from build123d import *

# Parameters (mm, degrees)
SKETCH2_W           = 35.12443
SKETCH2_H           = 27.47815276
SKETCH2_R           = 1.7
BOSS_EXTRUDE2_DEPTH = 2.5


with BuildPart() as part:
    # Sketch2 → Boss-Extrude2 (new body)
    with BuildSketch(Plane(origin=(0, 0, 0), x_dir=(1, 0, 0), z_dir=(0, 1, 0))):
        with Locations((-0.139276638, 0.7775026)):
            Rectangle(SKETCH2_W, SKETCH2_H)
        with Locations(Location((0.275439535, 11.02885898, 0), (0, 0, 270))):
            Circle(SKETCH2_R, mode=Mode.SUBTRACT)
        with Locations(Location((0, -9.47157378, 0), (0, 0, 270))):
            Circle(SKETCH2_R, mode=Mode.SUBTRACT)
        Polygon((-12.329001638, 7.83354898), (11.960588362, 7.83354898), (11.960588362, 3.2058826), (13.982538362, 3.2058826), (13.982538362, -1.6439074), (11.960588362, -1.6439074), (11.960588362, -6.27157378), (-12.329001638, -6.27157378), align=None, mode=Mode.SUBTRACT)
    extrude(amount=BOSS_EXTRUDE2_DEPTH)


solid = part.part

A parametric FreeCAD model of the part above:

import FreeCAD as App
import Part
import Sketcher
from FreeCAD import Vector


def add_polygon(sketch, points):
    """Adds a closed chain of lines whose ends are joined by coincident constraints."""
    first, n = sketch.GeometryCount, len(points)
    for a, b in zip(points, points[1:] + points[:1]):
        sketch.addGeometry(Part.LineSegment(App.Vector(*a, 0), App.Vector(*b, 0)), False)
    for i in range(n):
        sketch.addConstraint(Sketcher.Constraint("Coincident", first + i, 2, first + (i + 1) % n, 1))

doc = App.newDocument("Part")
body = doc.addObject("PartDesign::Body", "Body")

sketch1 = doc.addObject("Sketcher::SketchObject", "Sketch")
body.addObject(sketch1)
sketch1.AttachmentSupport = (doc.XZ_Plane, [""])
sketch1.MapMode = "FlatFace"
add_polygon(sketch1, [(-17.7, -14.5), (-17.7, 13), (17.4, 13), (17.4, -14.5)])
sketch1.addGeometry(Part.Circle(Vector(0, 9.5, 0), Vector(0, 0, 1), 1.7), False)
add_polygon(sketch1, [(-12.3, 6.3), (-12.3, -7.8), (12, -7.8), (12, -3.2), (14, -3.2), (14, 1.6), (12, 1.6), (12, 6.3)])
sketch1.addGeometry(Part.Circle(Vector(0.3, -11, 0), Vector(0, 0, 1), 1.7), False)
sketch1.addConstraint([
    Sketcher.Constraint("Vertical", 0),
    Sketcher.Constraint("Horizontal", 1),
    Sketcher.Constraint("Vertical", 2),
    Sketcher.Constraint("Horizontal", 3),
    Sketcher.Constraint("Vertical", 5),
    Sketcher.Constraint("Horizontal", 6),
    Sketcher.Constraint("Vertical", 7),
    Sketcher.Constraint("Horizontal", 8),
    Sketcher.Constraint("Vertical", 9),
    Sketcher.Constraint("Horizontal", 10),
    Sketcher.Constraint("Vertical", 11),
    Sketcher.Constraint("Horizontal", 12),
    Sketcher.Constraint("Equal", 4, 13),
    Sketcher.Constraint("PointOnObject", 4, 3, -2),
    Sketcher.Constraint("Vertical", 7, 2, 10, 2),
    Sketcher.Constraint("Equal", 7, 11),
    Sketcher.Constraint("Diameter", 4, 3.4),
    Sketcher.Constraint("DistanceY", 12, 2, 4, 3, 3.2),
    Sketcher.Constraint("DistanceY", 4, 3, 0, 2, 3.49),
    Sketcher.Constraint("DistanceX", 5, 2, -1, 1, 12.329002),
    Sketcher.Constraint("DistanceX", 1, 1, 1, 2, 35.12443),
    Sketcher.Constraint("DistanceX", 6, 1, 6, 2, 24.28959),
    Sketcher.Constraint("DistanceX", 8, 1, 8, 2, 2.02195),
    Sketcher.Constraint("DistanceY", 9, 1, 9, 2, 4.84979),
    Sketcher.Constraint("DistanceX", 13, 3, 1, 2, 17.147499),
    Sketcher.Constraint("DistanceX", 8, 2, 2, 2, 3.4404),
    Sketcher.Constraint("DistanceY", 0, 1, 0, 2, 27.478153),
    Sketcher.Constraint("DistanceY", 5, 2, 5, 1, 14.105123),
    Sketcher.Constraint("DistanceY", 13, 3, -1, 1, 11.028859),
    Sketcher.Constraint("DistanceY", 2, 2, -1, 1, 14.516579),
])
pad1 = doc.addObject("PartDesign::Pad", "Pad")
body.addObject(pad1)
pad1.Profile = sketch1
pad1.Length = 2.5
pad1.Reversed = True

doc.recompute()
